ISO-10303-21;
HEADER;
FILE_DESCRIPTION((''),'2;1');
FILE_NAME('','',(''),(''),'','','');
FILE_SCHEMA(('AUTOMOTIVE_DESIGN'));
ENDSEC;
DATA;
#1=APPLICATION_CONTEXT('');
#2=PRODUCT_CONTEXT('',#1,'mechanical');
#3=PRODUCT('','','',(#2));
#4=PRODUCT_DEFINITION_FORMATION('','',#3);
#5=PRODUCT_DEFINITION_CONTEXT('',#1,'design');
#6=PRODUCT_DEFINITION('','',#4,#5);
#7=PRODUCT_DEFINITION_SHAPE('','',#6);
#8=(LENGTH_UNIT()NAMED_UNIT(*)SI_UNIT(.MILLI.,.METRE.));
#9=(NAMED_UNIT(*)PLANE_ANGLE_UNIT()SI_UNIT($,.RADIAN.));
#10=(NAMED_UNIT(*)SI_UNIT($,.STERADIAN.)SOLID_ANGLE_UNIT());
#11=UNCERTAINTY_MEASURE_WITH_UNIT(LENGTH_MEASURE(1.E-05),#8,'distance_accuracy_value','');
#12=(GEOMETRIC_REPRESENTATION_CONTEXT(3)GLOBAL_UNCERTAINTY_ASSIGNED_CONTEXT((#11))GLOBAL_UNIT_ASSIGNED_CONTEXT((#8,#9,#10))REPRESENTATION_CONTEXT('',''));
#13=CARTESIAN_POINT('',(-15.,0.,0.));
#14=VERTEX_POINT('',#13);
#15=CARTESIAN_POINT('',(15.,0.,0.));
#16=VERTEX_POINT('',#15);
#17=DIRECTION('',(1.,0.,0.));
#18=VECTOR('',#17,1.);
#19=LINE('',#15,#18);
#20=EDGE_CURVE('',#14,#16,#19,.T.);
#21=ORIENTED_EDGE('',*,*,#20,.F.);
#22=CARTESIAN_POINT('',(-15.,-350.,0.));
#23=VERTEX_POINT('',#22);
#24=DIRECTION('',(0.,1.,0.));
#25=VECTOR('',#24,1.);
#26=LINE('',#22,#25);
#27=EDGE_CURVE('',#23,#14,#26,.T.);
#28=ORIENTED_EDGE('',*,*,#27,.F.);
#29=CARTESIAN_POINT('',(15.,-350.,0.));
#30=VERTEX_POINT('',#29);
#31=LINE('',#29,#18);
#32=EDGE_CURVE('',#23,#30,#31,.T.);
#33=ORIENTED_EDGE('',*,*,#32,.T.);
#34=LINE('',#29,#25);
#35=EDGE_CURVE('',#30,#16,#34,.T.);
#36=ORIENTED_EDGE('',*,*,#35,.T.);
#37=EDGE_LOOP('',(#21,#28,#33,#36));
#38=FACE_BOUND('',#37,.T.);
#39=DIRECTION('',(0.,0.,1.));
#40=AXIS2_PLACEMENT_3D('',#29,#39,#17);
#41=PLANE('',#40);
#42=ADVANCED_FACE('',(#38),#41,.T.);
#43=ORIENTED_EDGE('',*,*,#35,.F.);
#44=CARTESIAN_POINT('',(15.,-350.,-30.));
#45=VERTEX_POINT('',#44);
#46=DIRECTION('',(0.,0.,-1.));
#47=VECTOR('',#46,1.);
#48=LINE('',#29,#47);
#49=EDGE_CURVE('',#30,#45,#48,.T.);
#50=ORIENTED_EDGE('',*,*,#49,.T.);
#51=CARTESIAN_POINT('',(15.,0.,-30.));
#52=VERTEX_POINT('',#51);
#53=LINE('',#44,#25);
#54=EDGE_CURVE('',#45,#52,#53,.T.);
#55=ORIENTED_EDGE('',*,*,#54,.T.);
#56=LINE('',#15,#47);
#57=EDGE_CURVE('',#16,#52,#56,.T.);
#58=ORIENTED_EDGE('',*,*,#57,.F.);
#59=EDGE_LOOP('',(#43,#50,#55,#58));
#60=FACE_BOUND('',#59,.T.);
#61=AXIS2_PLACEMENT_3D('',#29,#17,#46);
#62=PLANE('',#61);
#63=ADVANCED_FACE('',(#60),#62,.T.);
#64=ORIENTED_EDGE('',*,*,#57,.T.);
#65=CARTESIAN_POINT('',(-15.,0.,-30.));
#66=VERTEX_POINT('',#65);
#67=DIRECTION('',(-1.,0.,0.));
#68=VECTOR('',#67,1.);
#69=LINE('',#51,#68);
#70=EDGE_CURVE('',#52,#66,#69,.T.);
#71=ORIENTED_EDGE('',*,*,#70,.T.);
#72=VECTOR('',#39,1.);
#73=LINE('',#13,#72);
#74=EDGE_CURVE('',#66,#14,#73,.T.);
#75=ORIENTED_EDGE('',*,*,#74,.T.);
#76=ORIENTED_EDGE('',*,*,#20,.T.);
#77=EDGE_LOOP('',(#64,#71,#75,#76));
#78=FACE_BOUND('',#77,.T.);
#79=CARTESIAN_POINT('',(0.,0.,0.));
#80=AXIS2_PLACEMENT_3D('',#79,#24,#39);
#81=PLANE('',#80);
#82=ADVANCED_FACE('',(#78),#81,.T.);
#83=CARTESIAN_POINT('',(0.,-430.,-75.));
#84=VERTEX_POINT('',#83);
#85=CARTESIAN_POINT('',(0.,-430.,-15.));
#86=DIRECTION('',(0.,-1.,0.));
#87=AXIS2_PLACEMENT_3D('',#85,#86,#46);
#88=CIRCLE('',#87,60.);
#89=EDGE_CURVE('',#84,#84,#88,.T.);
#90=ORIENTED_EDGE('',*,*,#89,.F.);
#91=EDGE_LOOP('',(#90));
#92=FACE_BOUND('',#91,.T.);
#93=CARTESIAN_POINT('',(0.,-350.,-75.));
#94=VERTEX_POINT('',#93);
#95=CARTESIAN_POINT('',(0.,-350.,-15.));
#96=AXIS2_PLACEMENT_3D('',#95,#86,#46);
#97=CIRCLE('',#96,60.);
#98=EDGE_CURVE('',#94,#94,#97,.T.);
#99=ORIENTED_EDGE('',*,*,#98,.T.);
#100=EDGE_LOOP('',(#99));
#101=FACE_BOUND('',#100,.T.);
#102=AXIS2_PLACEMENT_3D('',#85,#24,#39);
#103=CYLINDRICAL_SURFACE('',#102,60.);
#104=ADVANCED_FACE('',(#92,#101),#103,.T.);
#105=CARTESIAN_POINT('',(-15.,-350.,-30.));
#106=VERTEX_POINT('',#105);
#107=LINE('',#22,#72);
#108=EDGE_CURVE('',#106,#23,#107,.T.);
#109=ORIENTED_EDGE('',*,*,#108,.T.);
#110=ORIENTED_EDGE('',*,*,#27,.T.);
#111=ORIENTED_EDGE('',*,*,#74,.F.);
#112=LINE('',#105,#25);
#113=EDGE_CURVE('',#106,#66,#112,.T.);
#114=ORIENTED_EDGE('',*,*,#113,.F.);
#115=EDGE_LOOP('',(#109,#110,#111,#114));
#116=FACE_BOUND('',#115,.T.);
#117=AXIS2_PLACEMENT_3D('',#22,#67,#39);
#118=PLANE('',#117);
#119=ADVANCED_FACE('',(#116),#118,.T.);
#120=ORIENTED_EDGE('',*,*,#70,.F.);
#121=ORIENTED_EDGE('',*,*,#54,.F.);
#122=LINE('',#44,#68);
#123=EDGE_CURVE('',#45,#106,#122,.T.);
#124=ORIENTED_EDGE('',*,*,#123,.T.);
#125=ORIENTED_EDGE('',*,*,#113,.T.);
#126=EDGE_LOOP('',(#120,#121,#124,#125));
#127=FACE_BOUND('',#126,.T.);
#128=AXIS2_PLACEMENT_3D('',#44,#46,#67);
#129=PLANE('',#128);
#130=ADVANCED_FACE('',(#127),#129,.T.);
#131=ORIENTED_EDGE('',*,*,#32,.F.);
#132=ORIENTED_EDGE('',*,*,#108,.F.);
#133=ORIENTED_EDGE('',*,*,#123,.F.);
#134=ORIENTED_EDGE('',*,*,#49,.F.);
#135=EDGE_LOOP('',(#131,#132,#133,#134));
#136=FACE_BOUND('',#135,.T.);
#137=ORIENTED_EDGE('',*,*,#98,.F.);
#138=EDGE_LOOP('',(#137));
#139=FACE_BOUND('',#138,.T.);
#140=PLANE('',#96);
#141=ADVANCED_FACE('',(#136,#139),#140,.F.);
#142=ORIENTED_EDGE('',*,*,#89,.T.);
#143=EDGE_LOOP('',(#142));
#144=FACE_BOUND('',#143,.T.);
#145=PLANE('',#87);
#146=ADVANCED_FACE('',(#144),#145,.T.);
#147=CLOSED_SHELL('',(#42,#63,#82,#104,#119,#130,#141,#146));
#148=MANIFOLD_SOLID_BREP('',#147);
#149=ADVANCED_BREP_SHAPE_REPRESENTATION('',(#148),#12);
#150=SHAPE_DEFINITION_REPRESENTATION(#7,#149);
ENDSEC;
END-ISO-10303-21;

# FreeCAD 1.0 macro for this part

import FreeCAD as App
import Part
import Sketcher

V = App.Vector
Q = App.Units.Quantity

doc = App.newDocument("Part")
params = doc.addObject("Spreadsheet::Sheet", "Params")
for row, (alias, value) in enumerate([
    ("sketch1_width", "30 mm"),
    ("pad1_length", "350 mm"),
    ("sketch2_diameter", "120 mm"),
    ("pad2_length", "80 mm"),
], start=1):
    params.set(f"A{row}", alias)
    params.set(f"B{row}", "=" + value)
    params.setAlias(f"B{row}", alias)

body = doc.addObject("PartDesign::Body", "Body")

# Sketch on XZ plane
sketch1 = doc.addObject("Sketcher::SketchObject", "Sketch")
body.addObject(sketch1)
sketch1.AttachmentSupport = (doc.XZ_Plane, [""])
sketch1.MapMode = "FlatFace"
sketch1.addGeometry([
    Part.LineSegment(V(-15, -30, 0), V(-15, 0, 0)),
    Part.LineSegment(V(-15, 0, 0), V(15, 0, 0)),
    Part.LineSegment(V(15, 0, 0), V(15, -30, 0)),
    Part.LineSegment(V(15, -30, 0), V(-15, -30, 0)),
], False)
sketch1.addConstraint([
    Sketcher.Constraint("Coincident", 0, 2, 1, 1),
    Sketcher.Constraint("Coincident", 1, 2, 2, 1),
    Sketcher.Constraint("Coincident", 2, 2, 3, 1),
    Sketcher.Constraint("Coincident", 3, 2, 0, 1),
    Sketcher.Constraint("Vertical", 0),
    Sketcher.Constraint("Horizontal", 1),
    Sketcher.Constraint("Vertical", 2),
    Sketcher.Constraint("Horizontal", 3),
    Sketcher.Constraint("Symmetric", 0, 2, 1, 2, -1, 1),
    Sketcher.Constraint("Equal", 3, 0),
    Sketcher.Constraint("DistanceX", 1, 1, 1, 2, Q("30 mm")),
])
sketch1.setExpression("Constraints[10]", "Params.sketch1_width")
pad1 = doc.addObject("PartDesign::Pad", "Pad")
body.addObject(pad1)
pad1.Profile = sketch1
pad1.setExpression("Length", "Params.pad1_length")

# Sketch on XZ plane
sketch2 = doc.addObject("Sketcher::SketchObject", "Sketch001")
body.addObject(sketch2)
sketch2.AttachmentSupport = (doc.XZ_Plane, [""])
sketch2.MapMode = "FlatFace"
sketch2.AttachmentOffset = App.Placement(V(0, 0, 350), App.Rotation())
sketch2.addGeometry(Part.Circle(V(0, -15, 0), V(0, 0, 1), 60), False)
sketch2.addConstraint([
    Sketcher.Constraint("PointOnObject", 0, 3, -2),
    Sketcher.Constraint("Diameter", 0, Q("120 mm")),
    Sketcher.Constraint("DistanceY", 0, 3, -1, 1, Q("15 mm")),
])
sketch2.setExpression("Constraints[1]", "Params.sketch2_diameter")
pad2 = doc.addObject("PartDesign::Pad", "Pad001")
body.addObject(pad2)
pad2.Profile = sketch2
pad2.setExpression("Length", "Params.pad2_length")

doc.recompute()
